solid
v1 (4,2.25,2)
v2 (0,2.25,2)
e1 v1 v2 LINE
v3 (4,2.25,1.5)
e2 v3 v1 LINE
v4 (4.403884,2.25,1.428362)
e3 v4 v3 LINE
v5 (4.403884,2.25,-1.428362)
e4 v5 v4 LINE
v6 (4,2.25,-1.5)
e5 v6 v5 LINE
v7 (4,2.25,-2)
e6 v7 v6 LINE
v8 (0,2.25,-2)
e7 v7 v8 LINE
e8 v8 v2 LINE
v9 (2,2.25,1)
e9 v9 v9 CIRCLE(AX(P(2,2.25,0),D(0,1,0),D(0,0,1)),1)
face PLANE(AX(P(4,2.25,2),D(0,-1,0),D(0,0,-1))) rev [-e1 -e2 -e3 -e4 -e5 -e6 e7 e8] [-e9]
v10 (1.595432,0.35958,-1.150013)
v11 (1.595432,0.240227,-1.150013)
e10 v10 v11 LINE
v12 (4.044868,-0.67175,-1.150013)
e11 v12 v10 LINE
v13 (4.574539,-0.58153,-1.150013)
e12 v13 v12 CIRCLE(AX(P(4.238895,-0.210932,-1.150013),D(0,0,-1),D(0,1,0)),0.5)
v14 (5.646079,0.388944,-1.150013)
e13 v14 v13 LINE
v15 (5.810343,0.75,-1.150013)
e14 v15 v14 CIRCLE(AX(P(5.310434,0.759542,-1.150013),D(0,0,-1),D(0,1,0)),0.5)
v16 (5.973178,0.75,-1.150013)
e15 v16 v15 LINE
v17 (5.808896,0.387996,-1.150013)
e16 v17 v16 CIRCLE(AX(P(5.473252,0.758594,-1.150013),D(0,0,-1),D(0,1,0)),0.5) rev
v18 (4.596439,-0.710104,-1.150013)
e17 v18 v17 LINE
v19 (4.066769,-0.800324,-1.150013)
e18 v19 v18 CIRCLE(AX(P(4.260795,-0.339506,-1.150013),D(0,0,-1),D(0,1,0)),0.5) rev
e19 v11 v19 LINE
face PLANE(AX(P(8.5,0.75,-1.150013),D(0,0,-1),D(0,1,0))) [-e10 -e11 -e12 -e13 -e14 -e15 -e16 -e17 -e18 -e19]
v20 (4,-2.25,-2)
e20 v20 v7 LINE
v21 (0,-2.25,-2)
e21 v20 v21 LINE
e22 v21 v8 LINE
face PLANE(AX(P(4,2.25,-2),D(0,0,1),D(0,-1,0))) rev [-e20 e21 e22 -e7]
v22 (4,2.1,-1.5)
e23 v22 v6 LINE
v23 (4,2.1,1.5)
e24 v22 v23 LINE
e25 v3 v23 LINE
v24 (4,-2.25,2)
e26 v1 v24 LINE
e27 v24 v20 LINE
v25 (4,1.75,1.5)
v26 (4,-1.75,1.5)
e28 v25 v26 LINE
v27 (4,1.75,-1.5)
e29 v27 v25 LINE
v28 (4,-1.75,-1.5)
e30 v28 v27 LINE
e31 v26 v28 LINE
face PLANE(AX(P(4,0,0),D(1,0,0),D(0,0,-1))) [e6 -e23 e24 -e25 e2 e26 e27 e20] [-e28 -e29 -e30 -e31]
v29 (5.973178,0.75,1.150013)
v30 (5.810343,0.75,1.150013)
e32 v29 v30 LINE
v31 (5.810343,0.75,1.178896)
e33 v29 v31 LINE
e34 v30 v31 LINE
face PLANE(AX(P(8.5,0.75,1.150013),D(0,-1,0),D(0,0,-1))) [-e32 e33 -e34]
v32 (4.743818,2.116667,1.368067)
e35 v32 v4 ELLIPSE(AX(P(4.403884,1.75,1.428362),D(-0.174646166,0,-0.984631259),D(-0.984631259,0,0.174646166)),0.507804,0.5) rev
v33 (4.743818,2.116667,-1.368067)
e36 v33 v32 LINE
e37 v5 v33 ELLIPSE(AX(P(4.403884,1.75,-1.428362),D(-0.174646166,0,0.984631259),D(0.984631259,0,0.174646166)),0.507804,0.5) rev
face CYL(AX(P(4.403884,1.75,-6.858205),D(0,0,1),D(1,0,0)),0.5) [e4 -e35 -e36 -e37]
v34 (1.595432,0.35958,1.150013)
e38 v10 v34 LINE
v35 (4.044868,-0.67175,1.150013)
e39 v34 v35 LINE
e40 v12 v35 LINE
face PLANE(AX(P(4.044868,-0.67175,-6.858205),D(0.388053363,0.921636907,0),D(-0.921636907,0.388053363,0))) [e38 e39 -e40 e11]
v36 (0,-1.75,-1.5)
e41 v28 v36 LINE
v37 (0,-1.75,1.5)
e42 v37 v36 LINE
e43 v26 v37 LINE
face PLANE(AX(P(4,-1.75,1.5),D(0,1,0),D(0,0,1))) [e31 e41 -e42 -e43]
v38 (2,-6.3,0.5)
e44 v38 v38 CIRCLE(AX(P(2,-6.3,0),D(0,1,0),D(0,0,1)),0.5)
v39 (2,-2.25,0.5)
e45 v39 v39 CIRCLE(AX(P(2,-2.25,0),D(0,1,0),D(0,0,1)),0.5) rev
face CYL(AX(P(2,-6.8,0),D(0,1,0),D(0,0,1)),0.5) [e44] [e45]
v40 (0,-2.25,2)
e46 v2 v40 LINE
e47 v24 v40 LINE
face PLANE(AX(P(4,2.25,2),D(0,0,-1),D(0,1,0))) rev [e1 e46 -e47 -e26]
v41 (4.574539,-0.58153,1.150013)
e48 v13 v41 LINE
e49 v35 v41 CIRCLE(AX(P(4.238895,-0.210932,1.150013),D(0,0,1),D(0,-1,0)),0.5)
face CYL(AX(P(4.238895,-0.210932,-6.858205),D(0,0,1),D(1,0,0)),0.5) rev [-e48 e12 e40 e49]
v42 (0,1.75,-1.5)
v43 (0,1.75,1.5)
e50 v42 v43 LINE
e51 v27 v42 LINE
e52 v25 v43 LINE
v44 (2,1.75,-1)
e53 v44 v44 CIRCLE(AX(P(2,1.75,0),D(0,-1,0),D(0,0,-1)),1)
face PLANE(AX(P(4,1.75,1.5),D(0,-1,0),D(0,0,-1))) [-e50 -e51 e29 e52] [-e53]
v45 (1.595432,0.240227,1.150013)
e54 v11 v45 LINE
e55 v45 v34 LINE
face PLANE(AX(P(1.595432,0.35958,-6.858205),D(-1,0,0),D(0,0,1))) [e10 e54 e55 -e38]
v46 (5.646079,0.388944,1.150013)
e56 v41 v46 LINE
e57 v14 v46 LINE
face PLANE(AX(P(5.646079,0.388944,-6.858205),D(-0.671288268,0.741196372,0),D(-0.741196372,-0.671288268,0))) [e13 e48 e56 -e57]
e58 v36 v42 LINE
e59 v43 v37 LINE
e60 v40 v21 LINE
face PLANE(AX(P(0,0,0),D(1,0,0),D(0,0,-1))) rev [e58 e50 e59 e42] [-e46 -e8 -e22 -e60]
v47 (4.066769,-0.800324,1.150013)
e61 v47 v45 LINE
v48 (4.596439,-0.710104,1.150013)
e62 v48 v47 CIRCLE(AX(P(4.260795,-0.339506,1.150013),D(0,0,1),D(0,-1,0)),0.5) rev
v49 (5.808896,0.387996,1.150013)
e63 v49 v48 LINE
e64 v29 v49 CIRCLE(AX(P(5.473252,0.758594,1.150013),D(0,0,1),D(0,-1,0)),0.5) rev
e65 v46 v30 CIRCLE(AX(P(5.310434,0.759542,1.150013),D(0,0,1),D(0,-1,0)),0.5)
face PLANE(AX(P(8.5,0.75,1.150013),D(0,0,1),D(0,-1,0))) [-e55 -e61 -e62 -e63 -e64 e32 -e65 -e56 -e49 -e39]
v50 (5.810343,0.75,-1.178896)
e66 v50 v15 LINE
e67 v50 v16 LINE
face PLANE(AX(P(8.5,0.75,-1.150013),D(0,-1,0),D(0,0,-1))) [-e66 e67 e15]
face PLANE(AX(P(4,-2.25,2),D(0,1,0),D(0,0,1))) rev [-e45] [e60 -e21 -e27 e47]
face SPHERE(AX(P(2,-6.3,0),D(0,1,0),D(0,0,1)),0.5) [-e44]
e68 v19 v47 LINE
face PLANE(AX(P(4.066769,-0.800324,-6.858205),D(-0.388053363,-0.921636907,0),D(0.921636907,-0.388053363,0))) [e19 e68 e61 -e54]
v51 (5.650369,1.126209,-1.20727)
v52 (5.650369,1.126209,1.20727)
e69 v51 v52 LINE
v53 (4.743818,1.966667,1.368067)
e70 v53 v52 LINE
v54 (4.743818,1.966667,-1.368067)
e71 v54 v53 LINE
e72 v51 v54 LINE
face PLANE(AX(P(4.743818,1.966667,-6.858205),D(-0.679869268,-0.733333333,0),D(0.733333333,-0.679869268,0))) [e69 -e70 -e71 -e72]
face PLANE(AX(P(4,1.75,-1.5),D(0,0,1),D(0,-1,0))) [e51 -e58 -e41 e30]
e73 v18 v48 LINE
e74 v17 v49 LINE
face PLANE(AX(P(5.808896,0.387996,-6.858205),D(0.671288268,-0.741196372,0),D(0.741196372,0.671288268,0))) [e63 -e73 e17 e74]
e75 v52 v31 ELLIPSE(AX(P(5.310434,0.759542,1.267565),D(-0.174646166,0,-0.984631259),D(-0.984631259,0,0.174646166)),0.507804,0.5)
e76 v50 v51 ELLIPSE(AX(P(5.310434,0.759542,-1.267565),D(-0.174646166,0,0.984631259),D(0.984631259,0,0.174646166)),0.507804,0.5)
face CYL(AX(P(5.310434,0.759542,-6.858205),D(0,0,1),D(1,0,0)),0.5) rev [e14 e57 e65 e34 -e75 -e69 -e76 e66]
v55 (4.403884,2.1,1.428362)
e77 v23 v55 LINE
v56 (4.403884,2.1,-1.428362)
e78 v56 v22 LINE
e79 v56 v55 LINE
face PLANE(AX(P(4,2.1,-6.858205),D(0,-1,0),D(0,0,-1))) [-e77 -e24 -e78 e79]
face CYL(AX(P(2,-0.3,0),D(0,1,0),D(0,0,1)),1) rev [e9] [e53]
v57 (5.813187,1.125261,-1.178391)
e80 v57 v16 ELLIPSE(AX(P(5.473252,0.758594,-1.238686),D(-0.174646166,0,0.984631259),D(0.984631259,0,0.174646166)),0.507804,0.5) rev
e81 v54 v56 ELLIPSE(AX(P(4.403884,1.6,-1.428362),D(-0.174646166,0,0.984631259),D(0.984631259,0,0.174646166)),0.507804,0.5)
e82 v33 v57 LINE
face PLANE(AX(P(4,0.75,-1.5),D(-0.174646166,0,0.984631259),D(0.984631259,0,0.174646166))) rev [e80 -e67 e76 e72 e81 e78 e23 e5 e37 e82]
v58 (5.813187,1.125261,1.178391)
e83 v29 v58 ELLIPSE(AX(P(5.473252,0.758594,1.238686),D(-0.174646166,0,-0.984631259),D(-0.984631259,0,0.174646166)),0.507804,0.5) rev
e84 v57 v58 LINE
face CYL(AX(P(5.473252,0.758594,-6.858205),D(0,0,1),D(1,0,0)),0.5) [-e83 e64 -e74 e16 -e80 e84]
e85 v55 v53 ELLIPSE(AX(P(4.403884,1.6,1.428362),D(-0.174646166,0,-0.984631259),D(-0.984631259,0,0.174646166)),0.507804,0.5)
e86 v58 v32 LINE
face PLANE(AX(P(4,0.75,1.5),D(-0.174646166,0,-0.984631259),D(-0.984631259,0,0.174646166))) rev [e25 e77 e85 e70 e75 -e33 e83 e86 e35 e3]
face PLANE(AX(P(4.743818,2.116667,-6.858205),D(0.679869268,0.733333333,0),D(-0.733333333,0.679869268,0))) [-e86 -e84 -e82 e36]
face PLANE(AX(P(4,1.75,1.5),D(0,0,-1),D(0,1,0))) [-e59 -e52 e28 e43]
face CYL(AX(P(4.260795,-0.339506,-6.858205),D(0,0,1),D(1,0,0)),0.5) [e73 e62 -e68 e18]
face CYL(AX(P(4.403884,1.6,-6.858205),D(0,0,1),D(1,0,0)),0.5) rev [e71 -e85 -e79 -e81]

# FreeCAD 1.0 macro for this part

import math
import FreeCAD as App
import Part
import Sketcher
from FreeCAD import Vector


def edges_at(feature, points):
    """Names of the edges that pass closest to the given points."""
    edges = feature.Shape.Edges
    near = lambda p: min(range(len(edges)), key=lambda i: edges[i].distToShape(Part.Vertex(*p))[0])
    return sorted({f"Edge{near(p) + 1}" for p in points})

doc = App.newDocument("Part")
body = doc.addObject("PartDesign::Body", "Body")

sketch1 = body.newObject("Sketcher::SketchObject", "Sketch")
sketch1.AttachmentSupport = (doc.getObject("YZ_Plane"), [""])
sketch1.MapMode = "FlatFace"
sketch1.addGeometry(Part.LineSegment(Vector(2.2, 2, 0), Vector(-2.2, 2, 0)), False)
sketch1.addGeometry(Part.LineSegment(Vector(-2.2, 2, 0), Vector(-2.2, -2, 0)), False)
sketch1.addGeometry(Part.LineSegment(Vector(-2.2, -2, 0), Vector(2.2, -2, 0)), False)
sketch1.addGeometry(Part.LineSegment(Vector(2.2, -2, 0), Vector(2.2, 2, 0)), False)
sketch1.addGeometry(Part.LineSegment(Vector(-1.8, -1.5, 0), Vector(-1.8, 1.5, 0)), False)
sketch1.addGeometry(Part.LineSegment(Vector(-1.8, 1.5, 0), Vector(1.8, 1.5, 0)), False)
sketch1.addGeometry(Part.LineSegment(Vector(1.8, 1.5, 0), Vector(1.8, -1.5, 0)), False)
sketch1.addGeometry(Part.LineSegment(Vector(1.8, -1.5, 0), Vector(-1.8, -1.5, 0)), False)
sketch1.addConstraint(Sketcher.Constraint("Coincident", 0, 2, 1, 1))
sketch1.addConstraint(Sketcher.Constraint("Coincident", 1, 2, 2, 1))
sketch1.addConstraint(Sketcher.Constraint("Coincident", 2, 2, 3, 1))
sketch1.addConstraint(Sketcher.Constraint("Coincident", 3, 2, 0, 1))
sketch1.addConstraint(Sketcher.Constraint("Coincident", 4, 2, 5, 1))
sketch1.addConstraint(Sketcher.Constraint("Coincident", 5, 2, 6, 1))
sketch1.addConstraint(Sketcher.Constraint("Coincident", 6, 2, 7, 1))
sketch1.addConstraint(Sketcher.Constraint("Coincident", 7, 2, 4, 1))
sketch1.addConstraint(Sketcher.Constraint("Horizontal", 0))
sketch1.addConstraint(Sketcher.Constraint("Vertical", 1))
sketch1.addConstraint(Sketcher.Constraint("Horizontal", 2))
sketch1.addConstraint(Sketcher.Constraint("Vertical", 3))
sketch1.addConstraint(Sketcher.Constraint("Vertical", 4))
sketch1.addConstraint(Sketcher.Constraint("Horizontal", 5))
sketch1.addConstraint(Sketcher.Constraint("Vertical", 6))
sketch1.addConstraint(Sketcher.Constraint("Horizontal", 7))
sketch1.addConstraint(Sketcher.Constraint("Symmetric", 0, 2, 2, 2, -1, 1))
sketch1.addConstraint(Sketcher.Constraint("Symmetric", 4, 2, 6, 2, -1, 1))
sketch1.addConstraint(Sketcher.Constraint("DistanceY", 1, 2, 1, 1, 4.0))
sketch1.addConstraint(Sketcher.Constraint("DistanceY", 4, 1, 4, 2, 3.0))
sketch1.addConstraint(Sketcher.Constraint("DistanceX", 0, 2, 0, 1, 4.5))
sketch1.addConstraint(Sketcher.Constraint("DistanceX", 5, 1, 5, 2, 3.5))
pad1 = body.newObject("PartDesign::Pad", "Pad")
pad1.Profile = sketch1
pad1.Length = 4

sketch2 = body.newObject("Sketcher::SketchObject", "Sketch001")
sketch2.AttachmentSupport = (doc.getObject("XZ_Plane"), [""])
sketch2.MapMode = "FlatFace"
sketch2.AttachmentOffset = App.Placement(Vector(0, 0, 2.25), App.Rotation())
sketch2.addGeometry(Part.Circle(Vector(2, 0, 0), Vector(0, 0, 1), 0.5), False)
sketch2.addConstraint(Sketcher.Constraint("PointOnObject", 0, 3, -1))
sketch2.addConstraint(Sketcher.Constraint("Diameter", 0, 1.0))
sketch2.addConstraint(Sketcher.Constraint("DistanceX", -1, 1, 0, 3, 2.0))
pad2 = body.newObject("PartDesign::Pad", "Pad001")
pad2.Profile = sketch2
pad2.Length = 4.55
doc.recompute()

fillet = body.newObject("PartDesign::Fillet", "Fillet")
fillet.Base = (pad2, edges_at(pad2, [(1.5, -6.8, 0)]))
fillet.Radius = 0.5

sketch3 = body.newObject("Sketcher::SketchObject", "Sketch002")
sketch3.AttachmentSupport = (doc.getObject("XZ_Plane"), [""])
sketch3.MapMode = "FlatFace"
sketch3.AttachmentOffset = App.Placement(Vector(0, 0, -2.25), App.Rotation())
sketch3.addGeometry(Part.Circle(Vector(2, 0, 0), Vector(0, 0, 1), 1), False)
sketch3.addConstraint(Sketcher.Constraint("PointOnObject", 0, 3, -1))
sketch3.addConstraint(Sketcher.Constraint("Diameter", 0, 2.0))
sketch3.addConstraint(Sketcher.Constraint("DistanceX", -1, 1, 0, 3, 2.0))
pocket1 = body.newObject("PartDesign::Pocket", "Pocket")
pocket1.Profile = sketch3
pocket1.Length = 2.55
pocket1.Reversed = True

sketch4 = body.newObject("Sketcher::SketchObject", "Sketch003")
sketch4.AttachmentSupport = (doc.getObject("XY_Plane"), [""])
sketch4.MapMode = "FlatFace"
sketch4.AttachmentOffset = App.Placement(Vector(0, 0, 1.5), App.Rotation())
sketch4.addGeometry(Part.LineSegment(Vector(4.403884, 2.25, 0), Vector(4, 2.25, 0)), False)
sketch4.addGeometry(Part.LineSegment(Vector(4, 2.25, 0), Vector(4, 2.1, 0)), False)
sketch4.addGeometry(Part.LineSegment(Vector(4, 2.1, 0), Vector(4.403884, 2.1, 0)), False)
sketch4.addGeometry(Part.ArcOfCircle(Part.Circle(Vector(4.403884, 1.6, 0), Vector(0, 0, 1), 0.5), math.radians(47.166572), math.radians(90)), False)
sketch4.addGeometry(Part.LineSegment(Vector(4.743818, 1.966667, 0), Vector(5.650369, 1.126209, 0)), False)
sketch4.addGeometry(Part.ArcOfCircle(Part.Circle(Vector(5.310434, 0.759542, 0), Vector(0, 0, 1), 0.5), math.radians(-47.833428), math.radians(47.166572)), False)
sketch4.addGeometry(Part.LineSegment(Vector(5.646079, 0.388944, 0), Vector(4.574539, -0.58153, 0)), False)
sketch4.addGeometry(Part.ArcOfCircle(Part.Circle(Vector(4.238895, -0.210932, 0), Vector(0, 0, 1), 0.5), math.radians(-112.833428), math.radians(-47.833428)), False)
sketch4.addGeometry(Part.LineSegment(Vector(4.044868, -0.67175, 0), Vector(1.595432, 0.35958, 0)), False)
sketch4.addGeometry(Part.LineSegment(Vector(1.595432, 0.35958, 0), Vector(1.595432, 0.240227, 0)), False)
sketch4.addGeometry(Part.LineSegment(Vector(1.595432, 0.240227, 0), Vector(4.066769, -0.800324, 0)), False)
sketch4.addGeometry(Part.ArcOfCircle(Part.Circle(Vector(4.260795, -0.339506, 0), Vector(0, 0, 1), 0.5), math.radians(-112.833428), math.radians(-47.833428)), False)
sketch4.addGeometry(Part.LineSegment(Vector(4.596439, -0.710104, 0), Vector(5.808896, 0.387996, 0)), False)
sketch4.addGeometry(Part.ArcOfCircle(Part.Circle(Vector(5.473252, 0.758594, 0), Vector(0, 0, 1), 0.5), math.radians(-47.833428), math.radians(47.166572)), False)
sketch4.addGeometry(Part.LineSegment(Vector(5.813187, 1.125261, 0), Vector(4.743818, 2.116667, 0)), False)
sketch4.addGeometry(Part.ArcOfCircle(Part.Circle(Vector(4.403884, 1.75, 0), Vector(0, 0, 1), 0.5), math.radians(47.166572), math.radians(90)), False)
sketch4.addConstraint(Sketcher.Constraint("Coincident", 0, 2, 1, 1))
sketch4.addConstraint(Sketcher.Constraint("Coincident", 1, 2, 2, 1))
sketch4.addConstraint(Sketcher.Constraint("Coincident", 2, 2, 3, 2))
sketch4.addConstraint(Sketcher.Constraint("Coincident", 3, 1, 4, 1))
sketch4.addConstraint(Sketcher.Constraint("Coincident", 4, 2, 5, 2))
sketch4.addConstraint(Sketcher.Constraint("Coincident", 5, 1, 6, 1))
sketch4.addConstraint(Sketcher.Constraint("Coincident", 6, 2, 7, 2))
sketch4.addConstraint(Sketcher.Constraint("Coincident", 7, 1, 8, 1))
sketch4.addConstraint(Sketcher.Constraint("Coincident", 8, 2, 9, 1))
sketch4.addConstraint(Sketcher.Constraint("Coincident", 9, 2, 10, 1))
sketch4.addConstraint(Sketcher.Constraint("Coincident", 10, 2, 11, 1))
sketch4.addConstraint(Sketcher.Constraint("Coincident", 11, 2, 12, 1))
sketch4.addConstraint(Sketcher.Constraint("Coincident", 12, 2, 13, 1))
sketch4.addConstraint(Sketcher.Constraint("Coincident", 13, 2, 14, 1))
sketch4.addConstraint(Sketcher.Constraint("Coincident", 14, 2, 15, 1))
sketch4.addConstraint(Sketcher.Constraint("Coincident", 15, 2, 0, 1))
sketch4.addConstraint(Sketcher.Constraint("Horizontal", 0))
sketch4.addConstraint(Sketcher.Constraint("Vertical", 1))
sketch4.addConstraint(Sketcher.Constraint("Horizontal", 2))
sketch4.addConstraint(Sketcher.Constraint("Vertical", 9))
sketch4.addConstraint(Sketcher.Constraint("Radius", 3, 0.5))
sketch4.addConstraint(Sketcher.Constraint("Radius", 5, 0.5))
sketch4.addConstraint(Sketcher.Constraint("Radius", 7, 0.5))
sketch4.addConstraint(Sketcher.Constraint("Radius", 11, 0.5))
sketch4.addConstraint(Sketcher.Constraint("Radius", 13, 0.5))
sketch4.addConstraint(Sketcher.Constraint("Radius", 15, 0.5))
sketch4.addConstraint(Sketcher.Constraint("DistanceX", -1, 1, 0, 2, 4.0))
sketch4.addConstraint(Sketcher.Constraint("DistanceY", 1, 2, 1, 1, 0.15))
sketch4.addConstraint(Sketcher.Constraint("DistanceY", -1, 1, 3, 3, 1.6))
sketch4.addConstraint(Sketcher.Constraint("DistanceY", 3, 1, 14, 2, 0.15))
sketch4.addConstraint(Sketcher.Constraint("DistanceX", 7, 3, 11, 3, 0.0219))
sketch4.addConstraint(Sketcher.Constraint("DistanceY", 11, 3, 13, 3, 1.0981))
sketch4.addConstraint(Sketcher.Constraint("DistanceY", 5, 1, 5, 3, 0.370598))
sketch4.addConstraint(Sketcher.Constraint("DistanceY", 6, 2, 7, 3, 0.370598))
sketch4.addConstraint(Sketcher.Constraint("DistanceX", 7, 1, 10, 2, 0.0219))
sketch4.addConstraint(Sketcher.Constraint("DistanceX", 6, 2, 11, 2, 0.0219))
sketch4.addConstraint(Sketcher.Constraint("DistanceY", 12, 2, 13, 3, 0.370598))
sketch4.addConstraint(Sketcher.Constraint("Distance", 6, 1.445689))
sketch4.addConstraint(Sketcher.Constraint("Distance", 12, 1.635811))
sketch4.addConstraint(Sketcher.Constraint("Distance", 14, 1.45823))
sketch4.addConstraint(Sketcher.Constraint("DistanceX", 0, 2, 0, 1, 0.403884))
sketch4.addConstraint(Sketcher.Constraint("DistanceX", 2, 1, 2, 2, 0.403884))
sketch4.addConstraint(Sketcher.Constraint("DistanceY", 9, 2, 9, 1, 0.119353))
sketch4.addConstraint(Sketcher.Constraint("DistanceX", -1, 1, 3, 1, 4.743818))
sketch4.addConstraint(Sketcher.Constraint("DistanceX", -1, 1, 4, 2, 5.650369))
sketch4.addConstraint(Sketcher.Constraint("DistanceY", -1, 1, 4, 2, 1.126209))
sketch4.addConstraint(Sketcher.Constraint("DistanceX", -1, 1, 5, 1, 5.646079))
sketch4.addConstraint(Sketcher.Constraint("DistanceX", -1, 1, 6, 2, 4.574539))
sketch4.addConstraint(Sketcher.Constraint("DistanceX", -1, 1, 7, 1, 4.044868))
sketch4.addConstraint(Sketcher.Constraint("DistanceX", -1, 1, 8, 2, 1.595432))
sketch4.addConstraint(Sketcher.Constraint("DistanceY", -1, 1, 8, 2, 0.35958))
sketch4.addConstraint(Sketcher.Constraint("DistanceY", -1, 1, 13, 2, 1.125261))
sketch4.addConstraint(Sketcher.Constraint("DistanceX", -1, 1, 14, 2, 4.743818))
sketch4.addConstraint(Sketcher.Constraint("DistanceX", 3, 3, 5, 3, 0.906551))
pad3 = body.newObject("PartDesign::Pad", "Pad002")
pad3.Profile = sketch4
pad3.Length = 3
pad3.Reversed = True

sketch5 = body.newObject("Sketcher::SketchObject", "Sketch004")
sketch5.AttachmentSupport = (doc.getObject("XZ_Plane"), [""])
sketch5.MapMode = "FlatFace"
sketch5.AttachmentOffset = App.Placement(Vector(0, 0, -2.25), App.Rotation())
sketch5.addGeometry(Part.LineSegment(Vector(4, -1.5, 0), Vector(5.97, -1.15, 0)), False)
sketch5.addGeometry(Part.LineSegment(Vector(5.97, -1.15, 0), Vector(5.97, -1.5, 0)), False)
sketch5.addGeometry(Part.LineSegment(Vector(5.97, -1.5, 0), Vector(4, -1.5, 0)), False)
sketch5.addGeometry(Part.LineSegment(Vector(5.97, 1.15, 0), Vector(4, 1.5, 0)), False)
sketch5.addGeometry(Part.LineSegment(Vector(4, 1.5, 0), Vector(5.97, 1.5, 0)), False)
sketch5.addGeometry(Part.LineSegment(Vector(5.97, 1.5, 0), Vector(5.97, 1.15, 0)), False)
sketch5.addConstraint(Sketcher.Constraint("Coincident", 0, 2, 1, 1))
sketch5.addConstraint(Sketcher.Constraint("Coincident", 1, 2, 2, 1))
sketch5.addConstraint(Sketcher.Constraint("Coincident", 2, 2, 0, 1))
sketch5.addConstraint(Sketcher.Constraint("Coincident", 3, 2, 4, 1))
sketch5.addConstraint(Sketcher.Constraint("Coincident", 4, 2, 5, 1))
sketch5.addConstraint(Sketcher.Constraint("Coincident", 5, 2, 3, 1))
sketch5.addConstraint(Sketcher.Constraint("Vertical", 1))
sketch5.addConstraint(Sketcher.Constraint("Horizontal", 2))
sketch5.addConstraint(Sketcher.Constraint("Horizontal", 4))
sketch5.addConstraint(Sketcher.Constraint("Vertical", 5))
sketch5.addConstraint(Sketcher.Constraint("Symmetric", 2, 2, 3, 2, -1))
sketch5.addConstraint(Sketcher.Constraint("Symmetric", 0, 2, 5, 2, -1))
sketch5.addConstraint(Sketcher.Constraint("DistanceX", -1, 1, 2, 2, 4.0))
sketch5.addConstraint(Sketcher.Constraint("DistanceY", 2, 2, 3, 2, 3.0))
sketch5.addConstraint(Sketcher.Constraint("DistanceY", 1, 2, 1, 1, 0.35))
sketch5.addConstraint(Sketcher.Constraint("DistanceX", 2, 2, 2, 1, 1.973252))
pocket2 = body.newObject("PartDesign::Pocket", "Pocket001")
pocket2.Profile = sketch5
pocket2.Length = 1.5
pocket2.Reversed = True

sketch6 = body.newObject("Sketcher::SketchObject", "Sketch005")
sketch6.AttachmentSupport = (doc.getObject("YZ_Plane"), [""])
sketch6.MapMode = "FlatFace"
sketch6.AttachmentOffset = App.Placement(Vector(0, 0, 4), App.Rotation())
sketch6.addGeometry(Part.LineSegment(Vector(0.75, 1.5, 0), Vector(-1.25, 1.5, 0)), False)
sketch6.addGeometry(Part.LineSegment(Vector(-1.25, 1.5, 0), Vector(-1.25, 1.15, 0)), False)
sketch6.addGeometry(Part.LineSegment(Vector(-1.25, 1.15, 0), Vector(0.75, 1.15, 0)), False)
sketch6.addGeometry(Part.LineSegment(Vector(0.75, 1.15, 0), Vector(0.75, 1.5, 0)), False)
sketch6.addGeometry(Part.LineSegment(Vector(0.75, -1.15, 0), Vector(-1.25, -1.15, 0)), False)
sketch6.addGeometry(Part.LineSegment(Vector(-1.25, -1.15, 0), Vector(-1.25, -1.5, 0)), False)
sketch6.addGeometry(Part.LineSegment(Vector(-1.25, -1.5, 0), Vector(0.75, -1.5, 0)), False)
sketch6.addGeometry(Part.LineSegment(Vector(0.75, -1.5, 0), Vector(0.75, -1.15, 0)), False)
sketch6.addConstraint(Sketcher.Constraint("Coincident", 0, 2, 1, 1))
sketch6.addConstraint(Sketcher.Constraint("Coincident", 1, 2, 2, 1))
sketch6.addConstraint(Sketcher.Constraint("Coincident", 2, 2, 3, 1))
sketch6.addConstraint(Sketcher.Constraint("Coincident", 3, 2, 0, 1))
sketch6.addConstraint(Sketcher.Constraint("Coincident", 4, 2, 5, 1))
sketch6.addConstraint(Sketcher.Constraint("Coincident", 5, 2, 6, 1))
sketch6.addConstraint(Sketcher.Constraint("Coincident", 6, 2, 7, 1))
sketch6.addConstraint(Sketcher.Constraint("Coincident", 7, 2, 4, 1))
sketch6.addConstraint(Sketcher.Constraint("Horizontal", 0))
sketch6.addConstraint(Sketcher.Constraint("Vertical", 1))
sketch6.addConstraint(Sketcher.Constraint("Horizontal", 2))
sketch6.addConstraint(Sketcher.Constraint("Vertical", 3))
sketch6.addConstraint(Sketcher.Constraint("Horizontal", 4))
sketch6.addConstraint(Sketcher.Constraint("Vertical", 5))
sketch6.addConstraint(Sketcher.Constraint("Horizontal", 6))
sketch6.addConstraint(Sketcher.Constraint("Vertical", 7))
sketch6.addConstraint(Sketcher.Constraint("Symmetric", 1, 2, 4, 2, -1))
sketch6.addConstraint(Sketcher.Constraint("Symmetric", 3, 2, 6, 2, -1))
sketch6.addConstraint(Sketcher.Constraint("DistanceX", 0, 2, 0, 1, 2.0))
sketch6.addConstraint(Sketcher.Constraint("DistanceY", 5, 2, 0, 2, 3.0))
sketch6.addConstraint(Sketcher.Constraint("DistanceX", 0, 2, -1, 1, 1.25))
sketch6.addConstraint(Sketcher.Constraint("DistanceY", 1, 2, 1, 1, 0.349987))
pocket3 = body.newObject("PartDesign::Pocket", "Pocket002")
pocket3.Profile = sketch6
pocket3.Type = "ThroughAll"
pocket3.Midplane = True

doc.recompute()
